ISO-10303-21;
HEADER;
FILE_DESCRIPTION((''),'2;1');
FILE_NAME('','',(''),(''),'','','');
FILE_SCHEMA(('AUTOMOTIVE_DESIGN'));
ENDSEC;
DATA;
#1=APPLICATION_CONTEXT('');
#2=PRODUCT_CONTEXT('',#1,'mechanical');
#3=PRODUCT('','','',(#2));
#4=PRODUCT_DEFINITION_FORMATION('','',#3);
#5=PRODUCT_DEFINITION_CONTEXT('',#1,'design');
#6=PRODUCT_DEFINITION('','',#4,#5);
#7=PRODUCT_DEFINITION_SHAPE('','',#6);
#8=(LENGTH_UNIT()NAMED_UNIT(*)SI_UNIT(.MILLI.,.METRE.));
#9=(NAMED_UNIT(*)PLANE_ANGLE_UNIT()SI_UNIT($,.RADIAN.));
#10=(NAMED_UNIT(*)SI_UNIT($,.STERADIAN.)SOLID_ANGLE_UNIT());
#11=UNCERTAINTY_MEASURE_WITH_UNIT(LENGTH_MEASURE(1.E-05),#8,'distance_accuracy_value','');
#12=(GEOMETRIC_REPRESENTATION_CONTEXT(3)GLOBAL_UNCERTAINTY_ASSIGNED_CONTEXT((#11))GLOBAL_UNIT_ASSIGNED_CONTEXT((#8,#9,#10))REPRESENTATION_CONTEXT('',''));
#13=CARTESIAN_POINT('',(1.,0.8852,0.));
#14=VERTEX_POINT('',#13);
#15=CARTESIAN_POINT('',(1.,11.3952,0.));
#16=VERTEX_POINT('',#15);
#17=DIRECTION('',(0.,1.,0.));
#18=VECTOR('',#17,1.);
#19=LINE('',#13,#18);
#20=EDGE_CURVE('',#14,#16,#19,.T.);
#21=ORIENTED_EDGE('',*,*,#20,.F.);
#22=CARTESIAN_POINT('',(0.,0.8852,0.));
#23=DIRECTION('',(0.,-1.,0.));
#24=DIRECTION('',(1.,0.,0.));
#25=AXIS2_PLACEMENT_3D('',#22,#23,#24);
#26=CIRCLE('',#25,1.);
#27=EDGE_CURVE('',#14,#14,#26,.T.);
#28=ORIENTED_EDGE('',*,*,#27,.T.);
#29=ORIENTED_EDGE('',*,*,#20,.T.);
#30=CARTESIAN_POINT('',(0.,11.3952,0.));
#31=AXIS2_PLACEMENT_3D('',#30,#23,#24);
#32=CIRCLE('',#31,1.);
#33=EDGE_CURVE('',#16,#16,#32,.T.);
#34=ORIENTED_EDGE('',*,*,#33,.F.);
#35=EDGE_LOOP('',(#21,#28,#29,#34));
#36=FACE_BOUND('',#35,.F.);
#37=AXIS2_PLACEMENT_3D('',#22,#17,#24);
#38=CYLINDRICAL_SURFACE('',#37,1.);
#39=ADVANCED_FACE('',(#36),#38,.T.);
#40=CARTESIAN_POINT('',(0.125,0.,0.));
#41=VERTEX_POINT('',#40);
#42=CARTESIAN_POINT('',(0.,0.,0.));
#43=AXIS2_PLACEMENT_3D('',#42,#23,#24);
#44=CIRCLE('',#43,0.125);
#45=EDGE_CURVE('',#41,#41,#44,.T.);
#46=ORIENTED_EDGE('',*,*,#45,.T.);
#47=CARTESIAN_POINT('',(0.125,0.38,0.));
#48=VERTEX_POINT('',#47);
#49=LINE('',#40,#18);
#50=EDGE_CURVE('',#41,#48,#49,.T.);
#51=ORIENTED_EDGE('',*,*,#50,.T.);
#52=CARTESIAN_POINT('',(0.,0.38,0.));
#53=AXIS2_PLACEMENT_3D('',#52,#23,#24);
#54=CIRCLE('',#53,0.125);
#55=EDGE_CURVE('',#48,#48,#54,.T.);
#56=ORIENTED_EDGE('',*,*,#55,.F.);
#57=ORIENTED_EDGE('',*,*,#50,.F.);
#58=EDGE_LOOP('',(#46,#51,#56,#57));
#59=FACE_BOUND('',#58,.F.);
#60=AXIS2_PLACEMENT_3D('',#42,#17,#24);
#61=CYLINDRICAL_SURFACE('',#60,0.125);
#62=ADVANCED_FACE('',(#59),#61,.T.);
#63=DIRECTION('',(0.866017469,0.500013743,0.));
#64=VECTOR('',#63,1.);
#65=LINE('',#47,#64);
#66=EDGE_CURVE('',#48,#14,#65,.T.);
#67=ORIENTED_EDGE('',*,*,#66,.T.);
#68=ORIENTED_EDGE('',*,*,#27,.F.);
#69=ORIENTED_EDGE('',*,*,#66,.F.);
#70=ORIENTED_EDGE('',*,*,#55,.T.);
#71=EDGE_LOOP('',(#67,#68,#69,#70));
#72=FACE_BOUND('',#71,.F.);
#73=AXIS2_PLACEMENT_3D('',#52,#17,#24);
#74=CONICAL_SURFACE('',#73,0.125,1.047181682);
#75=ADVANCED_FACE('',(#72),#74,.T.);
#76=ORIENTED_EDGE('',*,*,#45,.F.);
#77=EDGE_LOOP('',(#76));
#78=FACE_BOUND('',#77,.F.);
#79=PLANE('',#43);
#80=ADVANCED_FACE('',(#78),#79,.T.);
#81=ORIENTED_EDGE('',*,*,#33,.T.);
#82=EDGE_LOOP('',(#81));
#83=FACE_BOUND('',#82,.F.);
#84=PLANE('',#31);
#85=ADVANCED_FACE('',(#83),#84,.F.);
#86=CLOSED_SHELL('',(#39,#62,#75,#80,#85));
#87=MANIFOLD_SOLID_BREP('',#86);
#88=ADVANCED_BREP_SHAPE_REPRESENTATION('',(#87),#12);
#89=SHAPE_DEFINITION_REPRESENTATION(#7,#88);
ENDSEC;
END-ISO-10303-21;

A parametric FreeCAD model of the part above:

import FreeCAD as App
import Part
import Sketcher
Q = App.Units.Quantity

doc = App.newDocument("Part")
body = doc.addObject("PartDesign::Body", "Body")

sketch1 = doc.addObject("Sketcher::SketchObject", "Sketch")
body.addObject(sketch1)
sketch1.AttachmentSupport = (doc.XY_Plane, [""])
sketch1.MapMode = "FlatFace"
sketch1.addGeometry([
    Part.LineSegment(App.Vector(0, 0, 0), App.Vector(0.12, 0, 0)),
    Part.LineSegment(App.Vector(0.12, 0, 0), App.Vector(0.12, 0.38, 0)),
    Part.LineSegment(App.Vector(0.12, 0.38, 0), App.Vector(1, 0.89, 0)),
    Part.LineSegment(App.Vector(1, 0.89, 0), App.Vector(1, 11.4, 0)),
    Part.LineSegment(App.Vector(1, 11.4, 0), App.Vector(0, 11.4, 0)),
    Part.LineSegment(App.Vector(0, 11.4, 0), App.Vector(0, 0, 0)),
], False)
sketch1.addConstraint([
    Sketcher.Constraint("Coincident", 0, 2, 1, 1),
    Sketcher.Constraint("Coincident", 1, 2, 2, 1),
    Sketcher.Constraint("Coincident", 2, 2, 3, 1),
    Sketcher.Constraint("Coincident", 3, 2, 4, 1),
    Sketcher.Constraint("Coincident", 4, 2, 5, 1),
    Sketcher.Constraint("Coincident", 5, 2, 0, 1),
    Sketcher.Constraint("Horizontal", 0),
    Sketcher.Constraint("Vertical", 1),
    Sketcher.Constraint("Vertical", 3),
    Sketcher.Constraint("Horizontal", 4),
    Sketcher.Constraint("Vertical", 5),
    Sketcher.Constraint("Coincident", 5, 2, -1, 1),
    Sketcher.Constraint("DistanceX", 4, 2, 4, 1, 1.0),
    Sketcher.Constraint("DistanceY", 1, 1, 1, 2, 0.38),
    Sketcher.Constraint("DistanceY", 3, 1, 3, 2, 10.51),
    Sketcher.Constraint("DistanceX", 0, 1, 0, 2, 0.125),
    Sketcher.Constraint("Angle", 2, Q("30.001 deg")),
])
revolution = doc.addObject("PartDesign::Revolution", "Revolution")
body.addObject(revolution)
revolution.Profile = sketch1
revolution.ReferenceAxis = (sketch1, ["V_Axis"])
revolution.Angle = 360

doc.recompute()
